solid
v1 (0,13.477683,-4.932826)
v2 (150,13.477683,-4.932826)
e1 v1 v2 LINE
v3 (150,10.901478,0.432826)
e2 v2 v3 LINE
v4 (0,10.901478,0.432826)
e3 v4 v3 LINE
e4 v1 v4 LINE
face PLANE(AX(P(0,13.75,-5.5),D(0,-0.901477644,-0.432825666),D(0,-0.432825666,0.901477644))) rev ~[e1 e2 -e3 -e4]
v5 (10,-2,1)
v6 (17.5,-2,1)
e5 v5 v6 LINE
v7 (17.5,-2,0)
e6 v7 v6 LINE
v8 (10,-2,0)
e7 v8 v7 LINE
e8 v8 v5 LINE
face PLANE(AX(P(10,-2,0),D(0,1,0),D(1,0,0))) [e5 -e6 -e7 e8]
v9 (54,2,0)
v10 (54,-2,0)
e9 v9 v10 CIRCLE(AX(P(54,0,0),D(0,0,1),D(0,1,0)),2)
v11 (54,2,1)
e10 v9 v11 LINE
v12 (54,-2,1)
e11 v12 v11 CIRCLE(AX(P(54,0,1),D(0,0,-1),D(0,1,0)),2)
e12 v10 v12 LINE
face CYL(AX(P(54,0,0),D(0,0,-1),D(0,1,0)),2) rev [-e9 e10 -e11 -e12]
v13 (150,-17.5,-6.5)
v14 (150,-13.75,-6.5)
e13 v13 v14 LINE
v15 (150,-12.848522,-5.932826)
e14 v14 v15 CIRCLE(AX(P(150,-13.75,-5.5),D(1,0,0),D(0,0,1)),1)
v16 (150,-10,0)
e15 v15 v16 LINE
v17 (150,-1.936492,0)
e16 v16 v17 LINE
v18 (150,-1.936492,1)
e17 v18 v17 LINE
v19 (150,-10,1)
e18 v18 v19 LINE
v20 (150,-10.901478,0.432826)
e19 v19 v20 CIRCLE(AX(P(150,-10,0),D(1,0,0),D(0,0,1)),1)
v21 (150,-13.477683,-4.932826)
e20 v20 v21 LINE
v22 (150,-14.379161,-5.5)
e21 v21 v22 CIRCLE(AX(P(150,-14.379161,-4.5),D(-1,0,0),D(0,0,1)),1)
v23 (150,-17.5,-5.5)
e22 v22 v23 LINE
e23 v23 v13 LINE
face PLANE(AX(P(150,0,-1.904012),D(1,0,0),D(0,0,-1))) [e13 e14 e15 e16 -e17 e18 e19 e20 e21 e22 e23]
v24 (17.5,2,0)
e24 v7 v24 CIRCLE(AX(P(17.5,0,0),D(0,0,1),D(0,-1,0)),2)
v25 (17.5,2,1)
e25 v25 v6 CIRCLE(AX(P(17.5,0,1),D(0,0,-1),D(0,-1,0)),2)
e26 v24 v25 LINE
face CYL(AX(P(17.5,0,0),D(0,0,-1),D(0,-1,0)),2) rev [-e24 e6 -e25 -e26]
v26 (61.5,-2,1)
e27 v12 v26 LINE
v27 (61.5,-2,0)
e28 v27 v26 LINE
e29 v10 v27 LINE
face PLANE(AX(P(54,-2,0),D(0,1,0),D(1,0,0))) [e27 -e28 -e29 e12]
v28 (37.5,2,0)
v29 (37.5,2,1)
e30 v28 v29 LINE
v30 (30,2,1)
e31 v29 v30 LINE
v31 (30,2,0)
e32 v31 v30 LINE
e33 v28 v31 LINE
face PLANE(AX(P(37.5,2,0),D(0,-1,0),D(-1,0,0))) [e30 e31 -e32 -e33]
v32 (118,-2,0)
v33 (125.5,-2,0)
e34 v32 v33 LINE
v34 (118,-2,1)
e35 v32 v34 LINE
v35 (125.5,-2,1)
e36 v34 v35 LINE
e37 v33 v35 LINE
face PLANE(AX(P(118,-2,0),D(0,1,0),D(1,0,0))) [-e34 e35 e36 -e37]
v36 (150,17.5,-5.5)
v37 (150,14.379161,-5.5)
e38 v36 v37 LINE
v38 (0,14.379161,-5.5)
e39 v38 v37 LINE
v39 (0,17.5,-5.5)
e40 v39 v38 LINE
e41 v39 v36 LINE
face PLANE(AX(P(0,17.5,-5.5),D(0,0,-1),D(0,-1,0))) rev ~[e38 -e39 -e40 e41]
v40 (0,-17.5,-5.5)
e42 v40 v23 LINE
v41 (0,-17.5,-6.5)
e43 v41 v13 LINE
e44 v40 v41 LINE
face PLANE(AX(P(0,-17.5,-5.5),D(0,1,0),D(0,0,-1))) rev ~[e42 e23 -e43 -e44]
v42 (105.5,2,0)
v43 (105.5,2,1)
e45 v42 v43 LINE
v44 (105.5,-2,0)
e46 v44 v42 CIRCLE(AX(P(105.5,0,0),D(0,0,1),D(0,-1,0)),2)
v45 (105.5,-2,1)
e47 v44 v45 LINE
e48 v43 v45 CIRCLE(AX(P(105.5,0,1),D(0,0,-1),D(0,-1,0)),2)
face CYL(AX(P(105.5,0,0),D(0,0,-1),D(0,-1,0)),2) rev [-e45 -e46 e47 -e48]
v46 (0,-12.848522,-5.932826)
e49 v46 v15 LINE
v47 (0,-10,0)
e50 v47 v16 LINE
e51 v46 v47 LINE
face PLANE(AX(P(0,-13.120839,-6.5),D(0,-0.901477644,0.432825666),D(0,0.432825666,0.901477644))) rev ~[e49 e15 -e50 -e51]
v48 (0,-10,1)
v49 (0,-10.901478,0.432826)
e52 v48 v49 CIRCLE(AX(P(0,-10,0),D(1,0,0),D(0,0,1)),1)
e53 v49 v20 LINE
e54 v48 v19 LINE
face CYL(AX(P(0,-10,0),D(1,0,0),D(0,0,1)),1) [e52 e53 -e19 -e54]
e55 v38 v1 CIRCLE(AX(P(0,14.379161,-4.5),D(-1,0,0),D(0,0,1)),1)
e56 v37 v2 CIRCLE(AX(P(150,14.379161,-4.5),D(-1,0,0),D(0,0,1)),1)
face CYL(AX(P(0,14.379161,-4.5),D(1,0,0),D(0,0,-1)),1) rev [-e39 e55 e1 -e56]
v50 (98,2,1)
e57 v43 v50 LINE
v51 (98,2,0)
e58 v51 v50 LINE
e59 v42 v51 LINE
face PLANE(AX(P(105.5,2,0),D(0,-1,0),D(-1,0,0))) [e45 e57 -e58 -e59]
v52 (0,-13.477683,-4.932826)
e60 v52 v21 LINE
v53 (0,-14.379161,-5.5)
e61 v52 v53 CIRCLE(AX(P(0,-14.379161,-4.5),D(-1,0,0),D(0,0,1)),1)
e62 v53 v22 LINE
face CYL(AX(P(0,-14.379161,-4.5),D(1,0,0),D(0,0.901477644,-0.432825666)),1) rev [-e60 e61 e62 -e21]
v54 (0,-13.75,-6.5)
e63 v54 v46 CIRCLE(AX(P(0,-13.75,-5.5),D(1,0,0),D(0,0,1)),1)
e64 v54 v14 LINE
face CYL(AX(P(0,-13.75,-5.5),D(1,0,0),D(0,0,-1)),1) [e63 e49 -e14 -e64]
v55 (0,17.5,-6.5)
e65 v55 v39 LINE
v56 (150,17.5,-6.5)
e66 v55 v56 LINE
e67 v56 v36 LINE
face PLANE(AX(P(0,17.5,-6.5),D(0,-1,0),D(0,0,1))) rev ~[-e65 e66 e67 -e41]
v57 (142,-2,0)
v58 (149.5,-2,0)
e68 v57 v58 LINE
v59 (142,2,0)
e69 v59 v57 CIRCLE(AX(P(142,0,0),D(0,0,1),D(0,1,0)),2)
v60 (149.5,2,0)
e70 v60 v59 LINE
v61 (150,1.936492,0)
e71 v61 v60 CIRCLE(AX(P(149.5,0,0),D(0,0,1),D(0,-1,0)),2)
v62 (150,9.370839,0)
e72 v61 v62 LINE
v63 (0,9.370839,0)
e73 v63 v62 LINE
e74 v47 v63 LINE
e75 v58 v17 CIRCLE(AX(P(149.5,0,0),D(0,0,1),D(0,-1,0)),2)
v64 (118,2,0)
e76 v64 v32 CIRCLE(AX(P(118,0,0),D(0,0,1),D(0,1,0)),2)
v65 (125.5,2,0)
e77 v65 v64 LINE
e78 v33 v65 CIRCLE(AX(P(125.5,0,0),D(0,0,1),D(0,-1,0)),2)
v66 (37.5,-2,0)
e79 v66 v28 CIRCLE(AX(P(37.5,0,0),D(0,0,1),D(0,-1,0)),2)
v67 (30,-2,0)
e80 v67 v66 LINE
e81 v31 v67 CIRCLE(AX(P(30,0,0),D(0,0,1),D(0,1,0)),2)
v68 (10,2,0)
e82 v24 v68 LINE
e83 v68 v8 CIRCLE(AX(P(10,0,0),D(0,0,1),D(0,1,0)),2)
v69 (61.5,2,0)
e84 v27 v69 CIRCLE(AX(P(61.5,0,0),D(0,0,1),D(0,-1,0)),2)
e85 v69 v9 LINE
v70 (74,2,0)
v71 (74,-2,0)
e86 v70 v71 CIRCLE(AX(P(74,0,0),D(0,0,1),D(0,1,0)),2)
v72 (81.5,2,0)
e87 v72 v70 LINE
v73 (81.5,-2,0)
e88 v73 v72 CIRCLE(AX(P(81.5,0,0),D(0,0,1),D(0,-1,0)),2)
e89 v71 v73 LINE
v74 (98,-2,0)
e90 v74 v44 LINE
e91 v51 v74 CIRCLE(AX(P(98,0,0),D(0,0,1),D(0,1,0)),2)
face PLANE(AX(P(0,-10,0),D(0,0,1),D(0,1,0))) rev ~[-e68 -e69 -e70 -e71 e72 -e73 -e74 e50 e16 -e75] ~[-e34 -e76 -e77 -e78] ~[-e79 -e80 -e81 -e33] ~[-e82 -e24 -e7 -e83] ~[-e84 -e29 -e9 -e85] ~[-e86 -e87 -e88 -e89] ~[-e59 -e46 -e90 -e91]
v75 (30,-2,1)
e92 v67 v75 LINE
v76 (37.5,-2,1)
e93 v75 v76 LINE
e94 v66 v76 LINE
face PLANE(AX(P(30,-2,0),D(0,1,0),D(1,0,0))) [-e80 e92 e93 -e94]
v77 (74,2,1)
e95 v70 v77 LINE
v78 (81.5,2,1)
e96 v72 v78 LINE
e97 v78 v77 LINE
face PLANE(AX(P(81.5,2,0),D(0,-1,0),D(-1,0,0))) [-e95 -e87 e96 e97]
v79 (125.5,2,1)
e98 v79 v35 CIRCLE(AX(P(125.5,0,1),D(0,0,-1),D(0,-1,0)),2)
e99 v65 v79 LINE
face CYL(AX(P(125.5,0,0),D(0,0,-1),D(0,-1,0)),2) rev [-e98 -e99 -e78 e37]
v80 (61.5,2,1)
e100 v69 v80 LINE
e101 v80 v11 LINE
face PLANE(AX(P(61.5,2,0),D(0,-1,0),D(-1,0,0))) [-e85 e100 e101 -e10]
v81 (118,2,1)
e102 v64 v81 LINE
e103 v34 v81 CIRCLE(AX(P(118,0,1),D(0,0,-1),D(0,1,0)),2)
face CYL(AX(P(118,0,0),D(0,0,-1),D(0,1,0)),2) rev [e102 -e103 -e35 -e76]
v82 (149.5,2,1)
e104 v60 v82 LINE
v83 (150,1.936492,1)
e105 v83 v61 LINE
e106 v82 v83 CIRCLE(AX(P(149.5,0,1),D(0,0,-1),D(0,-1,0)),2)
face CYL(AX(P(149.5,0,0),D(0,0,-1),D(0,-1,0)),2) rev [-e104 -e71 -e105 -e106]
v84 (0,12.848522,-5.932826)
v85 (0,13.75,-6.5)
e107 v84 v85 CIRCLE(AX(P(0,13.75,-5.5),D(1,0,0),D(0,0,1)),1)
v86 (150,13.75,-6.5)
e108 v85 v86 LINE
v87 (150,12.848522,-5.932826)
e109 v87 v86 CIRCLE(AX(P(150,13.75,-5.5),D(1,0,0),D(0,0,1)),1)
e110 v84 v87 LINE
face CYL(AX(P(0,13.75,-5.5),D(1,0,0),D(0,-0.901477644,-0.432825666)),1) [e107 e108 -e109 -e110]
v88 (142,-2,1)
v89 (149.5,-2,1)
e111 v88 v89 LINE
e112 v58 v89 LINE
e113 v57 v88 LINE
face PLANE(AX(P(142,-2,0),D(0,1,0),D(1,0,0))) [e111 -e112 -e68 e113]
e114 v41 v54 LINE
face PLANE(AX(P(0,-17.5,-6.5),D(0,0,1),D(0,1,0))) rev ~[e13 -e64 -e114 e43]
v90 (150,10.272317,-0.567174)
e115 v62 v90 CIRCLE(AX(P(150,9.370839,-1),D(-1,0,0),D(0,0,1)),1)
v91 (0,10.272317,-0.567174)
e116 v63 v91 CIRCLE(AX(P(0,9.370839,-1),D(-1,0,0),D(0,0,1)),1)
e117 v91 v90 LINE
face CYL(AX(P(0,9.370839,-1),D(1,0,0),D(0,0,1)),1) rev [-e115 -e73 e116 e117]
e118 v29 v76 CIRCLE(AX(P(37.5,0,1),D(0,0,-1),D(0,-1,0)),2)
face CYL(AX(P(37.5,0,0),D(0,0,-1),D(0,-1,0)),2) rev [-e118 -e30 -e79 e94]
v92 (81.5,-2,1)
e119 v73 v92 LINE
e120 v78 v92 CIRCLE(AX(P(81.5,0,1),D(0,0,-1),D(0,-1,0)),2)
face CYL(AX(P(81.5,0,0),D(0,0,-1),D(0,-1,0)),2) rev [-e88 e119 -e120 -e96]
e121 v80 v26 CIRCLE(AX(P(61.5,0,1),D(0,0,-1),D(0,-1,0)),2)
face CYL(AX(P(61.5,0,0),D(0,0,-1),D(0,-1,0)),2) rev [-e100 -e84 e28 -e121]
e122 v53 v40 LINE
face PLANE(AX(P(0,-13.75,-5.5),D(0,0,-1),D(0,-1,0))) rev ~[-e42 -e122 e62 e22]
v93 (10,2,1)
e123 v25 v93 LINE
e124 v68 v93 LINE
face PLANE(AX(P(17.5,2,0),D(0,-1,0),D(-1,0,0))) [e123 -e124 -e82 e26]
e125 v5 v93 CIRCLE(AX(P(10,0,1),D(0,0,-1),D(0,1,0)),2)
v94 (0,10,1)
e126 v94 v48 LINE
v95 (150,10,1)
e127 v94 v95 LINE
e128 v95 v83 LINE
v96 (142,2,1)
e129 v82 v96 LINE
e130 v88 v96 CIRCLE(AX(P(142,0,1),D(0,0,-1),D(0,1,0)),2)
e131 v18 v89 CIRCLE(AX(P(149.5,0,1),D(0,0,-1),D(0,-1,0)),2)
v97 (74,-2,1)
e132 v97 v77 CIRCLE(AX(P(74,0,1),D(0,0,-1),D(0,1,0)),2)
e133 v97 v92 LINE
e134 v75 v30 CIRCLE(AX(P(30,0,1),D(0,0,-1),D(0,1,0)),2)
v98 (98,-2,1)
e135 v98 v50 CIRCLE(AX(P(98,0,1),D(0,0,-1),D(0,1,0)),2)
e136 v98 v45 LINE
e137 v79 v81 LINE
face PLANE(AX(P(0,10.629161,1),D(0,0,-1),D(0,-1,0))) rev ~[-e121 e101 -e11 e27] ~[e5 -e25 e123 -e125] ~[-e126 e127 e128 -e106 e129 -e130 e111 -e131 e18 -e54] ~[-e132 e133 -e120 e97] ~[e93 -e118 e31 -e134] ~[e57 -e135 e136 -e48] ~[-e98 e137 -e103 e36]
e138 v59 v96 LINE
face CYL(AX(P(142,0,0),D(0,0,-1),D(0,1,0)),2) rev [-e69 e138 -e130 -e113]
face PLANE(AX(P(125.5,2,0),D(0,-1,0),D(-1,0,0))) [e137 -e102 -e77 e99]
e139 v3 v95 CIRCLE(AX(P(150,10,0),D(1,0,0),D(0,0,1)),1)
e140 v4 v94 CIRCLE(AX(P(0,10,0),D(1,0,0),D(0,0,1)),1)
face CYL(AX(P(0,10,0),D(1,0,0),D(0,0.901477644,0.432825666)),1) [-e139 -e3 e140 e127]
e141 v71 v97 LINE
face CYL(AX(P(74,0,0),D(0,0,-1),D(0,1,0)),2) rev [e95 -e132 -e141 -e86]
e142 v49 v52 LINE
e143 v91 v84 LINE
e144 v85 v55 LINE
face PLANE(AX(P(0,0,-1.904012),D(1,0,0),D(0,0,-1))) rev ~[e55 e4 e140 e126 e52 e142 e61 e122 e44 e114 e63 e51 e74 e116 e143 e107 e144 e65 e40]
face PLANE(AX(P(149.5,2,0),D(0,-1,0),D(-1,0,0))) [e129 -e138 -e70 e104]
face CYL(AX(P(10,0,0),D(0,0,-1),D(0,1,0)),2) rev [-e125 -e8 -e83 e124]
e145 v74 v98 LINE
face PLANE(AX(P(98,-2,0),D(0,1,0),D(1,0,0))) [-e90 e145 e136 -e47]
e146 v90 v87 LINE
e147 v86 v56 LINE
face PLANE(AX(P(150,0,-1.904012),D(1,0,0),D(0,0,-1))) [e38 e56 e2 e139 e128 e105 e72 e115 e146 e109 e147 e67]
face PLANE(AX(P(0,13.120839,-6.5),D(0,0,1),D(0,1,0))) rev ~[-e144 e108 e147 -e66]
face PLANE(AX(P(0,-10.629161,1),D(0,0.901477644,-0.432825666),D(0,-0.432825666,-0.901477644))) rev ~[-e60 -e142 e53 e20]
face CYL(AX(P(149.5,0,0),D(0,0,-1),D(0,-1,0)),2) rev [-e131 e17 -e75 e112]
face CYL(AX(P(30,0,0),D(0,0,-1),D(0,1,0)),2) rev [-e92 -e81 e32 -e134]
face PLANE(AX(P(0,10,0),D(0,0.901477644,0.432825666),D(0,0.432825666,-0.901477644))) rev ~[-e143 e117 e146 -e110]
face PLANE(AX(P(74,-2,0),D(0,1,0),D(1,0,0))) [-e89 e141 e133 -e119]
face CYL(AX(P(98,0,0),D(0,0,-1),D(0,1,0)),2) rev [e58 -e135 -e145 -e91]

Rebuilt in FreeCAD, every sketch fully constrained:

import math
import FreeCAD as App
import Part
import Sketcher
from FreeCAD import Vector


def edges_at(feature, points):
    """Names of the edges that pass closest to the given points."""
    edges = feature.Shape.Edges
    near = lambda p: min(range(len(edges)), key=lambda i: edges[i].distToShape(Part.Vertex(*p))[0])
    return sorted({f"Edge{near(p) + 1}" for p in points})

doc = App.newDocument("Part")
body = doc.addObject("PartDesign::Body", "Body")

sketch1 = body.newObject("Sketcher::SketchObject", "Sketch")
sketch1.AttachmentSupport = (doc.getObject("YZ_Plane"), [""])
sketch1.MapMode = "FlatFace"
sketch1.addGeometry(Part.LineSegment(Vector(-10, 0, 0), Vector(10, 0, 0)), False)
sketch1.addGeometry(Part.LineSegment(Vector(10, 0, 0), Vector(13.120839, -6.5, 0)), False)
sketch1.addGeometry(Part.LineSegment(Vector(13.120839, -6.5, 0), Vector(17.5, -6.5, 0)), False)
sketch1.addGeometry(Part.LineSegment(Vector(17.5, -6.5, 0), Vector(17.5, -5.5, 0)), False)
sketch1.addGeometry(Part.LineSegment(Vector(17.5, -5.5, 0), Vector(13.75, -5.5, 0)), False)
sketch1.addGeometry(Part.LineSegment(Vector(13.75, -5.5, 0), Vector(10.629161, 1, 0)), False)
sketch1.addGeometry(Part.LineSegment(Vector(10.629161, 1, 0), Vector(-10.629161, 1, 0)), False)
sketch1.addGeometry(Part.LineSegment(Vector(-10.629161, 1, 0), Vector(-13.75, -5.5, 0)), False)
sketch1.addGeometry(Part.LineSegment(Vector(-13.75, -5.5, 0), Vector(-17.5, -5.5, 0)), False)
sketch1.addGeometry(Part.LineSegment(Vector(-17.5, -5.5, 0), Vector(-17.5, -6.5, 0)), False)
sketch1.addGeometry(Part.LineSegment(Vector(-17.5, -6.5, 0), Vector(-13.120839, -6.5, 0)), False)
sketch1.addGeometry(Part.LineSegment(Vector(-13.120839, -6.5, 0), Vector(-10, 0, 0)), False)
sketch1.addConstraint(Sketcher.Constraint("Coincident", 0, 2, 1, 1))
sketch1.addConstraint(Sketcher.Constraint("Coincident", 1, 2, 2, 1))
sketch1.addConstraint(Sketcher.Constraint("Coincident", 2, 2, 3, 1))
sketch1.addConstraint(Sketcher.Constraint("Coincident", 3, 2, 4, 1))
sketch1.addConstraint(Sketcher.Constraint("Coincident", 4, 2, 5, 1))
sketch1.addConstraint(Sketcher.Constraint("Coincident", 5, 2, 6, 1))
sketch1.addConstraint(Sketcher.Constraint("Coincident", 6, 2, 7, 1))
sketch1.addConstraint(Sketcher.Constraint("Coincident", 7, 2, 8, 1))
sketch1.addConstraint(Sketcher.Constraint("Coincident", 8, 2, 9, 1))
sketch1.addConstraint(Sketcher.Constraint("Coincident", 9, 2, 10, 1))
sketch1.addConstraint(Sketcher.Constraint("Coincident", 10, 2, 11, 1))
sketch1.addConstraint(Sketcher.Constraint("Coincident", 11, 2, 0, 1))
sketch1.addConstraint(Sketcher.Constraint("Horizontal", 0))
sketch1.addConstraint(Sketcher.Constraint("Horizontal", 2))
sketch1.addConstraint(Sketcher.Constraint("Vertical", 3))
sketch1.addConstraint(Sketcher.Constraint("Horizontal", 4))
sketch1.addConstraint(Sketcher.Constraint("Horizontal", 6))
sketch1.addConstraint(Sketcher.Constraint("Horizontal", 8))
sketch1.addConstraint(Sketcher.Constraint("Vertical", 9))
sketch1.addConstraint(Sketcher.Constraint("Horizontal", 10))
sketch1.addConstraint(Sketcher.Constraint("Symmetric", 0, 2, 11, 2, -1, 1))
sketch1.addConstraint(Sketcher.Constraint("Symmetric", 4, 2, 7, 2, -2))
sketch1.addConstraint(Sketcher.Constraint("Symmetric", 2, 2, 9, 2, -2))
sketch1.addConstraint(Sketcher.Constraint("Parallel", 1, 5))
sketch1.addConstraint(Sketcher.Constraint("Parallel", 7, 11))
sketch1.addConstraint(Sketcher.Constraint("Equal", 2, 10))
sketch1.addConstraint(Sketcher.Constraint("Equal", 1, 5))
sketch1.addConstraint(Sketcher.Constraint("DistanceX", 0, 1, 0, 2, 20.0))
sketch1.addConstraint(Sketcher.Constraint("DistanceY", 3, 1, 3, 2, 1.0))
sketch1.addConstraint(Sketcher.Constraint("DistanceX", 4, 2, 4, 1, 3.75))
sketch1.addConstraint(Sketcher.Constraint("DistanceY", 1, 2, -1, 1, 6.5))
sketch1.addConstraint(Sketcher.Constraint("DistanceX", -1, 1, 2, 2, 17.5))
sketch1.addConstraint(Sketcher.Constraint("DistanceX", 2, 1, 2, 2, 4.379161))
pad1 = body.newObject("PartDesign::Pad", "Pad")
pad1.Profile = sketch1
pad1.Length = 150
doc.recompute()

fillet = body.newObject("PartDesign::Fillet", "Fillet")
fillet.Base = (pad1, edges_at(pad1, [
    (75, 10, 0),
    (75, -13.121, -6.5),
    (75, -13.75, -5.5),
    (75, -10.629, 1),
    (75, 10.629, 1),
    (75, 13.75, -5.5),
    (75, 13.121, -6.5),
]))
fillet.Radius = 1

sketch2 = body.newObject("Sketcher::SketchObject", "Sketch001")
sketch2.AttachmentSupport = (doc.getObject("XY_Plane"), [""])
sketch2.MapMode = "FlatFace"
sketch2.addGeometry(Part.LineSegment(Vector(17.5, -2, 0), Vector(10, -2, 0)), False)
sketch2.addGeometry(Part.ArcOfCircle(Part.Circle(Vector(10, 0, 0), Vector(0, 0, 1), 2), math.radians(90), math.radians(270)), False)
sketch2.addGeometry(Part.LineSegment(Vector(10, 2, 0), Vector(17.5, 2, 0)), False)
sketch2.addGeometry(Part.ArcOfCircle(Part.Circle(Vector(17.5, 0, 0), Vector(0, 0, 1), 2), math.radians(-90), math.radians(90)), False)
sketch2.addGeometry(Part.LineSegment(Vector(37.5, -2, 0), Vector(30, -2, 0)), False)
sketch2.addGeometry(Part.ArcOfCircle(Part.Circle(Vector(30, 0, 0), Vector(0, 0, 1), 2), math.radians(90), math.radians(270)), False)
sketch2.addGeometry(Part.LineSegment(Vector(30, 2, 0), Vector(37.5, 2, 0)), False)
sketch2.addGeometry(Part.ArcOfCircle(Part.Circle(Vector(37.5, 0, 0), Vector(0, 0, 1), 2), math.radians(-90), math.radians(90)), False)
sketch2.addGeometry(Part.LineSegment(Vector(61.5, -2, 0), Vector(54, -2, 0)), False)
sketch2.addGeometry(Part.ArcOfCircle(Part.Circle(Vector(54, 0, 0), Vector(0, 0, 1), 2), math.radians(90), math.radians(270)), False)
sketch2.addGeometry(Part.LineSegment(Vector(54, 2, 0), Vector(61.5, 2, 0)), False)
sketch2.addGeometry(Part.ArcOfCircle(Part.Circle(Vector(61.5, 0, 0), Vector(0, 0, 1), 2), math.radians(-90), math.radians(90)), False)
sketch2.addGeometry(Part.LineSegment(Vector(81.5, -2, 0), Vector(74, -2, 0)), False)
sketch2.addGeometry(Part.ArcOfCircle(Part.Circle(Vector(74, 0, 0), Vector(0, 0, 1), 2), math.radians(90), math.radians(270)), False)
sketch2.addGeometry(Part.LineSegment(Vector(74, 2, 0), Vector(81.5, 2, 0)), False)
sketch2.addGeometry(Part.ArcOfCircle(Part.Circle(Vector(81.5, 0, 0), Vector(0, 0, 1), 2), math.radians(-90), math.radians(90)), False)
sketch2.addGeometry(Part.LineSegment(Vector(105.5, -2, 0), Vector(98, -2, 0)), False)
sketch2.addGeometry(Part.ArcOfCircle(Part.Circle(Vector(98, 0, 0), Vector(0, 0, 1), 2), math.radians(90), math.radians(270)), False)
sketch2.addGeometry(Part.LineSegment(Vector(98, 2, 0), Vector(105.5, 2, 0)), False)
sketch2.addGeometry(Part.ArcOfCircle(Part.Circle(Vector(105.5, 0, 0), Vector(0, 0, 1), 2), math.radians(-90), math.radians(90)), False)
sketch2.addGeometry(Part.LineSegment(Vector(125.5, -2, 0), Vector(118, -2, 0)), False)
sketch2.addGeometry(Part.ArcOfCircle(Part.Circle(Vector(118, 0, 0), Vector(0, 0, 1), 2), math.radians(90), math.radians(270)), False)
sketch2.addGeometry(Part.LineSegment(Vector(118, 2, 0), Vector(125.5, 2, 0)), False)
sketch2.addGeometry(Part.ArcOfCircle(Part.Circle(Vector(125.5, 0, 0), Vector(0, 0, 1), 2), math.radians(-90), math.radians(90)), False)
sketch2.addGeometry(Part.LineSegment(Vector(149.5, -2, 0), Vector(142, -2, 0)), False)
sketch2.addGeometry(Part.ArcOfCircle(Part.Circle(Vector(142, 0, 0), Vector(0, 0, 1), 2), math.radians(90), math.radians(270)), False)
sketch2.addGeometry(Part.LineSegment(Vector(142, 2, 0), Vector(149.5, 2, 0)), False)
sketch2.addGeometry(Part.ArcOfCircle(Part.Circle(Vector(149.5, 0, 0), Vector(0, 0, 1), 2), math.radians(-90), math.radians(90)), False)
sketch2.addGeometry(Part.LineSegment(Vector(169.5, -2, 0), Vector(162, -2, 0)), False)
sketch2.addGeometry(Part.ArcOfCircle(Part.Circle(Vector(162, 0, 0), Vector(0, 0, 1), 2), math.radians(90), math.radians(270)), False)
sketch2.addGeometry(Part.LineSegment(Vector(162, 2, 0), Vector(169.5, 2, 0)), False)
sketch2.addGeometry(Part.ArcOfCircle(Part.Circle(Vector(169.5, 0, 0), Vector(0, 0, 1), 2), math.radians(-90), math.radians(90)), False)
sketch2.addGeometry(Part.LineSegment(Vector(193.5, -2, 0), Vector(186, -2, 0)), False)
sketch2.addGeometry(Part.ArcOfCircle(Part.Circle(Vector(186, 0, 0), Vector(0, 0, 1), 2), math.radians(90), math.radians(270)), False)
sketch2.addGeometry(Part.LineSegment(Vector(186, 2, 0), Vector(193.5, 2, 0)), False)
sketch2.addGeometry(Part.ArcOfCircle(Part.Circle(Vector(193.5, 0, 0), Vector(0, 0, 1), 2), math.radians(-90), math.radians(90)), False)
sketch2.addGeometry(Part.LineSegment(Vector(213.5, -2, 0), Vector(206, -2, 0)), False)
sketch2.addGeometry(Part.ArcOfCircle(Part.Circle(Vector(206, 0, 0), Vector(0, 0, 1), 2), math.radians(90), math.radians(270)), False)
sketch2.addGeometry(Part.LineSegment(Vector(206, 2, 0), Vector(213.5, 2, 0)), False)
sketch2.addGeometry(Part.ArcOfCircle(Part.Circle(Vector(213.5, 0, 0), Vector(0, 0, 1), 2), math.radians(-90), math.radians(90)), False)
sketch2.addGeometry(Part.LineSegment(Vector(237.5, -2, 0), Vector(230, -2, 0)), False)
sketch2.addGeometry(Part.ArcOfCircle(Part.Circle(Vector(230, 0, 0), Vector(0, 0, 1), 2), math.radians(90), math.radians(270)), False)
sketch2.addGeometry(Part.LineSegment(Vector(230, 2, 0), Vector(237.5, 2, 0)), False)
sketch2.addGeometry(Part.ArcOfCircle(Part.Circle(Vector(237.5, 0, 0), Vector(0, 0, 1), 2), math.radians(-90), math.radians(90)), False)
sketch2.addGeometry(Part.LineSegment(Vector(257.5, -2, 0), Vector(250, -2, 0)), False)
sketch2.addGeometry(Part.ArcOfCircle(Part.Circle(Vector(250, 0, 0), Vector(0, 0, 1), 2), math.radians(90), math.radians(270)), False)
sketch2.addGeometry(Part.LineSegment(Vector(250, 2, 0), Vector(257.5, 2, 0)), False)
sketch2.addGeometry(Part.ArcOfCircle(Part.Circle(Vector(257.5, 0, 0), Vector(0, 0, 1), 2), math.radians(-90), math.radians(90)), False)
sketch2.addGeometry(Part.LineSegment(Vector(281.5, -2, 0), Vector(274, -2, 0)), False)
sketch2.addGeometry(Part.ArcOfCircle(Part.Circle(Vector(274, 0, 0), Vector(0, 0, 1), 2), math.radians(90), math.radians(270)), False)
sketch2.addGeometry(Part.LineSegment(Vector(274, 2, 0), Vector(281.5, 2, 0)), False)
sketch2.addGeometry(Part.ArcOfCircle(Part.Circle(Vector(281.5, 0, 0), Vector(0, 0, 1), 2), math.radians(-90), math.radians(90)), False)
sketch2.addGeometry(Part.LineSegment(Vector(301.5, -2, 0), Vector(294, -2, 0)), False)
sketch2.addGeometry(Part.ArcOfCircle(Part.Circle(Vector(294, 0, 0), Vector(0, 0, 1), 2), math.radians(90), math.radians(270)), False)
sketch2.addGeometry(Part.LineSegment(Vector(294, 2, 0), Vector(301.5, 2, 0)), False)
sketch2.addGeometry(Part.ArcOfCircle(Part.Circle(Vector(301.5, 0, 0), Vector(0, 0, 1), 2), math.radians(-90), math.radians(90)), False)
sketch2.addGeometry(Part.LineSegment(Vector(325.5, -2, 0), Vector(318, -2, 0)), False)
sketch2.addGeometry(Part.ArcOfCircle(Part.Circle(Vector(318, 0, 0), Vector(0, 0, 1), 2), math.radians(90), math.radians(270)), False)
sketch2.addGeometry(Part.LineSegment(Vector(318, 2, 0), Vector(325.5, 2, 0)), False)
sketch2.addGeometry(Part.ArcOfCircle(Part.Circle(Vector(325.5, 0, 0), Vector(0, 0, 1), 2), math.radians(-90), math.radians(90)), False)
sketch2.addGeometry(Part.LineSegment(Vector(345.5, -2, 0), Vector(338, -2, 0)), False)
sketch2.addGeometry(Part.ArcOfCircle(Part.Circle(Vector(338, 0, 0), Vector(0, 0, 1), 2), math.radians(90), math.radians(270)), False)
sketch2.addGeometry(Part.LineSegment(Vector(338, 2, 0), Vector(345.5, 2, 0)), False)
sketch2.addGeometry(Part.ArcOfCircle(Part.Circle(Vector(345.5, 0, 0), Vector(0, 0, 1), 2), math.radians(-90), math.radians(90)), False)
sketch2.addGeometry(Part.LineSegment(Vector(369.5, -2, 0), Vector(362, -2, 0)), False)
sketch2.addGeometry(Part.ArcOfCircle(Part.Circle(Vector(362, 0, 0), Vector(0, 0, 1), 2), math.radians(90), math.radians(270)), False)
sketch2.addGeometry(Part.LineSegment(Vector(362, 2, 0), Vector(369.5, 2, 0)), False)
sketch2.addGeometry(Part.ArcOfCircle(Part.Circle(Vector(369.5, 0, 0), Vector(0, 0, 1), 2), math.radians(-90), math.radians(90)), False)
sketch2.addGeometry(Part.LineSegment(Vector(389.5, -2, 0), Vector(382, -2, 0)), False)
sketch2.addGeometry(Part.ArcOfCircle(Part.Circle(Vector(382, 0, 0), Vector(0, 0, 1), 2), math.radians(90), math.radians(270)), False)
sketch2.addGeometry(Part.LineSegment(Vector(382, 2, 0), Vector(389.5, 2, 0)), False)
sketch2.addGeometry(Part.ArcOfCircle(Part.Circle(Vector(389.5, 0, 0), Vector(0, 0, 1), 2), math.radians(-90), math.radians(90)), False)
sketch2.addConstraint(Sketcher.Constraint("Tangent", 0, 2, 1, 2))
sketch2.addConstraint(Sketcher.Constraint("Tangent", 1, 1, 2, 1))
sketch2.addConstraint(Sketcher.Constraint("Tangent", 2, 2, 3, 2))
sketch2.addConstraint(Sketcher.Constraint("Tangent", 3, 1, 0, 1))
sketch2.addConstraint(Sketcher.Constraint("Tangent", 4, 2, 5, 2))
sketch2.addConstraint(Sketcher.Constraint("Tangent", 5, 1, 6, 1))
sketch2.addConstraint(Sketcher.Constraint("Tangent", 6, 2, 7, 2))
sketch2.addConstraint(Sketcher.Constraint("Tangent", 7, 1, 4, 1))
sketch2.addConstraint(Sketcher.Constraint("Tangent", 8, 2, 9, 2))
sketch2.addConstraint(Sketcher.Constraint("Tangent", 9, 1, 10, 1))
sketch2.addConstraint(Sketcher.Constraint("Tangent", 10, 2, 11, 2))
sketch2.addConstraint(Sketcher.Constraint("Tangent", 11, 1, 8, 1))
sketch2.addConstraint(Sketcher.Constraint("Tangent", 12, 2, 13, 2))
sketch2.addConstraint(Sketcher.Constraint("Tangent", 13, 1, 14, 1))
sketch2.addConstraint(Sketcher.Constraint("Tangent", 14, 2, 15, 2))
sketch2.addConstraint(Sketcher.Constraint("Tangent", 15, 1, 12, 1))
sketch2.addConstraint(Sketcher.Constraint("Tangent", 16, 2, 17, 2))
sketch2.addConstraint(Sketcher.Constraint("Tangent", 17, 1, 18, 1))
sketch2.addConstraint(Sketcher.Constraint("Tangent", 18, 2, 19, 2))
sketch2.addConstraint(Sketcher.Constraint("Tangent", 19, 1, 16, 1))
sketch2.addConstraint(Sketcher.Constraint("Tangent", 20, 2, 21, 2))
sketch2.addConstraint(Sketcher.Constraint("Tangent", 21, 1, 22, 1))
sketch2.addConstraint(Sketcher.Constraint("Tangent", 22, 2, 23, 2))
sketch2.addConstraint(Sketcher.Constraint("Tangent", 23, 1, 20, 1))
sketch2.addConstraint(Sketcher.Constraint("Tangent", 24, 2, 25, 2))
sketch2.addConstraint(Sketcher.Constraint("Tangent", 25, 1, 26, 1))
sketch2.addConstraint(Sketcher.Constraint("Tangent", 26, 2, 27, 2))
sketch2.addConstraint(Sketcher.Constraint("Tangent", 27, 1, 24, 1))
sketch2.addConstraint(Sketcher.Constraint("Tangent", 28, 2, 29, 2))
sketch2.addConstraint(Sketcher.Constraint("Tangent", 29, 1, 30, 1))
sketch2.addConstraint(Sketcher.Constraint("Tangent", 30, 2, 31, 2))
sketch2.addConstraint(Sketcher.Constraint("Tangent", 31, 1, 28, 1))
sketch2.addConstraint(Sketcher.Constraint("Tangent", 32, 2, 33, 2))
sketch2.addConstraint(Sketcher.Constraint("Tangent", 33, 1, 34, 1))
sketch2.addConstraint(Sketcher.Constraint("Tangent", 34, 2, 35, 2))
sketch2.addConstraint(Sketcher.Constraint("Tangent", 35, 1, 32, 1))
sketch2.addConstraint(Sketcher.Constraint("Tangent", 36, 2, 37, 2))
sketch2.addConstraint(Sketcher.Constraint("Tangent", 37, 1, 38, 1))
sketch2.addConstraint(Sketcher.Constraint("Tangent", 38, 2, 39, 2))
sketch2.addConstraint(Sketcher.Constraint("Tangent", 39, 1, 36, 1))
sketch2.addConstraint(Sketcher.Constraint("Tangent", 40, 2, 41, 2))
sketch2.addConstraint(Sketcher.Constraint("Tangent", 41, 1, 42, 1))
sketch2.addConstraint(Sketcher.Constraint("Tangent", 42, 2, 43, 2))
sketch2.addConstraint(Sketcher.Constraint("Tangent", 43, 1, 40, 1))
sketch2.addConstraint(Sketcher.Constraint("Tangent", 44, 2, 45, 2))
sketch2.addConstraint(Sketcher.Constraint("Tangent", 45, 1, 46, 1))
sketch2.addConstraint(Sketcher.Constraint("Tangent", 46, 2, 47, 2))
sketch2.addConstraint(Sketcher.Constraint("Tangent", 47, 1, 44, 1))
sketch2.addConstraint(Sketcher.Constraint("Tangent", 48, 2, 49, 2))
sketch2.addConstraint(Sketcher.Constraint("Tangent", 49, 1, 50, 1))
sketch2.addConstraint(Sketcher.Constraint("Tangent", 50, 2, 51, 2))
sketch2.addConstraint(Sketcher.Constraint("Tangent", 51, 1, 48, 1))
sketch2.addConstraint(Sketcher.Constraint("Tangent", 52, 2, 53, 2))
sketch2.addConstraint(Sketcher.Constraint("Tangent", 53, 1, 54, 1))
sketch2.addConstraint(Sketcher.Constraint("Tangent", 54, 2, 55, 2))
sketch2.addConstraint(Sketcher.Constraint("Tangent", 55, 1, 52, 1))
sketch2.addConstraint(Sketcher.Constraint("Tangent", 56, 2, 57, 2))
sketch2.addConstraint(Sketcher.Constraint("Tangent", 57, 1, 58, 1))
sketch2.addConstraint(Sketcher.Constraint("Tangent", 58, 2, 59, 2))
sketch2.addConstraint(Sketcher.Constraint("Tangent", 59, 1, 56, 1))
sketch2.addConstraint(Sketcher.Constraint("Tangent", 60, 2, 61, 2))
sketch2.addConstraint(Sketcher.Constraint("Tangent", 61, 1, 62, 1))
sketch2.addConstraint(Sketcher.Constraint("Tangent", 62, 2, 63, 2))
sketch2.addConstraint(Sketcher.Constraint("Tangent", 63, 1, 60, 1))
sketch2.addConstraint(Sketcher.Constraint("Tangent", 64, 2, 65, 2))
sketch2.addConstraint(Sketcher.Constraint("Tangent", 65, 1, 66, 1))
sketch2.addConstraint(Sketcher.Constraint("Tangent", 66, 2, 67, 2))
sketch2.addConstraint(Sketcher.Constraint("Tangent", 67, 1, 64, 1))
sketch2.addConstraint(Sketcher.Constraint("Tangent", 68, 2, 69, 2))
sketch2.addConstraint(Sketcher.Constraint("Tangent", 69, 1, 70, 1))
sketch2.addConstraint(Sketcher.Constraint("Tangent", 70, 2, 71, 2))
sketch2.addConstraint(Sketcher.Constraint("Tangent", 71, 1, 68, 1))
sketch2.addConstraint(Sketcher.Constraint("Horizontal", 0))
sketch2.addConstraint(Sketcher.Constraint("Horizontal", 2))
sketch2.addConstraint(Sketcher.Constraint("Horizontal", 4))
sketch2.addConstraint(Sketcher.Constraint("Horizontal", 6))
sketch2.addConstraint(Sketcher.Constraint("Horizontal", 8))
sketch2.addConstraint(Sketcher.Constraint("Horizontal", 10))
sketch2.addConstraint(Sketcher.Constraint("Horizontal", 12))
sketch2.addConstraint(Sketcher.Constraint("Horizontal", 14))
sketch2.addConstraint(Sketcher.Constraint("Horizontal", 16))
sketch2.addConstraint(Sketcher.Constraint("Horizontal", 18))
sketch2.addConstraint(Sketcher.Constraint("Horizontal", 20))
sketch2.addConstraint(Sketcher.Constraint("Horizontal", 22))
sketch2.addConstraint(Sketcher.Constraint("Horizontal", 24))
sketch2.addConstraint(Sketcher.Constraint("Horizontal", 26))
sketch2.addConstraint(Sketcher.Constraint("Horizontal", 28))
sketch2.addConstraint(Sketcher.Constraint("Horizontal", 30))
sketch2.addConstraint(Sketcher.Constraint("Horizontal", 32))
sketch2.addConstraint(Sketcher.Constraint("Horizontal", 34))
sketch2.addConstraint(Sketcher.Constraint("Horizontal", 36))
sketch2.addConstraint(Sketcher.Constraint("Horizontal", 38))
sketch2.addConstraint(Sketcher.Constraint("Horizontal", 40))
sketch2.addConstraint(Sketcher.Constraint("Horizontal", 42))
sketch2.addConstraint(Sketcher.Constraint("Horizontal", 44))
sketch2.addConstraint(Sketcher.Constraint("Horizontal", 46))
sketch2.addConstraint(Sketcher.Constraint("Horizontal", 48))
sketch2.addConstraint(Sketcher.Constraint("Horizontal", 50))
sketch2.addConstraint(Sketcher.Constraint("Horizontal", 52))
sketch2.addConstraint(Sketcher.Constraint("Horizontal", 54))
sketch2.addConstraint(Sketcher.Constraint("Horizontal", 56))
sketch2.addConstraint(Sketcher.Constraint("Horizontal", 58))
sketch2.addConstraint(Sketcher.Constraint("Horizontal", 60))
sketch2.addConstraint(Sketcher.Constraint("Horizontal", 62))
sketch2.addConstraint(Sketcher.Constraint("Horizontal", 64))
sketch2.addConstraint(Sketcher.Constraint("Horizontal", 66))
sketch2.addConstraint(Sketcher.Constraint("Horizontal", 68))
sketch2.addConstraint(Sketcher.Constraint("Horizontal", 70))
sketch2.addConstraint(Sketcher.Constraint("Equal", 3, 5))
sketch2.addConstraint(Sketcher.Constraint("Equal", 7, 9))
sketch2.addConstraint(Sketcher.Constraint("Equal", 11, 13))
sketch2.addConstraint(Sketcher.Constraint("Equal", 15, 17))
sketch2.addConstraint(Sketcher.Constraint("Equal", 19, 21))
sketch2.addConstraint(Sketcher.Constraint("Equal", 23, 25))
sketch2.addConstraint(Sketcher.Constraint("Equal", 27, 29))
sketch2.addConstraint(Sketcher.Constraint("Equal", 31, 33))
sketch2.addConstraint(Sketcher.Constraint("Equal", 35, 37))
sketch2.addConstraint(Sketcher.Constraint("Equal", 39, 41))
sketch2.addConstraint(Sketcher.Constraint("Equal", 43, 45))
sketch2.addConstraint(Sketcher.Constraint("Equal", 47, 49))
sketch2.addConstraint(Sketcher.Constraint("Equal", 51, 53))
sketch2.addConstraint(Sketcher.Constraint("Equal", 55, 57))
sketch2.addConstraint(Sketcher.Constraint("Equal", 59, 61))
sketch2.addConstraint(Sketcher.Constraint("Equal", 63, 65))
sketch2.addConstraint(Sketcher.Constraint("Equal", 67, 69))
sketch2.addConstraint(Sketcher.Constraint("PointOnObject", 1, 3, -1))
sketch2.addConstraint(Sketcher.Constraint("PointOnObject", 5, 3, -1))
sketch2.addConstraint(Sketcher.Constraint("PointOnObject", 9, 3, -1))
sketch2.addConstraint(Sketcher.Constraint("PointOnObject", 13, 3, -1))
sketch2.addConstraint(Sketcher.Constraint("PointOnObject", 17, 3, -1))
sketch2.addConstraint(Sketcher.Constraint("PointOnObject", 21, 3, -1))
sketch2.addConstraint(Sketcher.Constraint("PointOnObject", 25, 3, -1))
sketch2.addConstraint(Sketcher.Constraint("PointOnObject", 29, 3, -1))
sketch2.addConstraint(Sketcher.Constraint("PointOnObject", 33, 3, -1))
sketch2.addConstraint(Sketcher.Constraint("PointOnObject", 37, 3, -1))
sketch2.addConstraint(Sketcher.Constraint("PointOnObject", 41, 3, -1))
sketch2.addConstraint(Sketcher.Constraint("PointOnObject", 45, 3, -1))
sketch2.addConstraint(Sketcher.Constraint("PointOnObject", 49, 3, -1))
sketch2.addConstraint(Sketcher.Constraint("PointOnObject", 53, 3, -1))
sketch2.addConstraint(Sketcher.Constraint("PointOnObject", 57, 3, -1))
sketch2.addConstraint(Sketcher.Constraint("PointOnObject", 61, 3, -1))
sketch2.addConstraint(Sketcher.Constraint("PointOnObject", 65, 3, -1))
sketch2.addConstraint(Sketcher.Constraint("PointOnObject", 69, 3, -1))
sketch2.addConstraint(Sketcher.Constraint("Equal", 2, 4))
sketch2.addConstraint(Sketcher.Constraint("Equal", 6, 8))
sketch2.addConstraint(Sketcher.Constraint("Equal", 10, 12))
sketch2.addConstraint(Sketcher.Constraint("Equal", 14, 16))
sketch2.addConstraint(Sketcher.Constraint("Equal", 18, 20))
sketch2.addConstraint(Sketcher.Constraint("Equal", 22, 24))
sketch2.addConstraint(Sketcher.Constraint("Equal", 26, 28))
sketch2.addConstraint(Sketcher.Constraint("Equal", 30, 32))
sketch2.addConstraint(Sketcher.Constraint("Equal", 34, 36))
sketch2.addConstraint(Sketcher.Constraint("Equal", 38, 40))
sketch2.addConstraint(Sketcher.Constraint("Equal", 42, 44))
sketch2.addConstraint(Sketcher.Constraint("Equal", 46, 48))
sketch2.addConstraint(Sketcher.Constraint("Equal", 50, 52))
sketch2.addConstraint(Sketcher.Constraint("Equal", 54, 56))
sketch2.addConstraint(Sketcher.Constraint("Equal", 58, 60))
sketch2.addConstraint(Sketcher.Constraint("Equal", 62, 64))
sketch2.addConstraint(Sketcher.Constraint("Equal", 66, 68))
sketch2.addConstraint(Sketcher.Constraint("Radius", 1, 2.0))
sketch2.addConstraint(Sketcher.Constraint("DistanceX", 0, 2, 0, 1, 7.5))
sketch2.addConstraint(Sketcher.Constraint("DistanceX", -1, 1, 1, 3, 10.0))
sketch2.addConstraint(Sketcher.Constraint("DistanceX", -1, 1, 5, 3, 30.0))
sketch2.addConstraint(Sketcher.Constraint("DistanceX", -1, 1, 9, 3, 54.0))
sketch2.addConstraint(Sketcher.Constraint("DistanceX", -1, 1, 13, 3, 74.0))
sketch2.addConstraint(Sketcher.Constraint("DistanceX", -1, 1, 17, 3, 98.0))
sketch2.addConstraint(Sketcher.Constraint("DistanceX", -1, 1, 21, 3, 118.0))
sketch2.addConstraint(Sketcher.Constraint("DistanceX", -1, 1, 25, 3, 142.0))
sketch2.addConstraint(Sketcher.Constraint("DistanceX", -1, 1, 29, 3, 162.0))
sketch2.addConstraint(Sketcher.Constraint("DistanceX", -1, 1, 33, 3, 186.0))
sketch2.addConstraint(Sketcher.Constraint("DistanceX", -1, 1, 37, 3, 206.0))
sketch2.addConstraint(Sketcher.Constraint("DistanceX", -1, 1, 41, 3, 230.0))
sketch2.addConstraint(Sketcher.Constraint("DistanceX", -1, 1, 45, 3, 250.0))
sketch2.addConstraint(Sketcher.Constraint("DistanceX", -1, 1, 49, 3, 274.0))
sketch2.addConstraint(Sketcher.Constraint("DistanceX", -1, 1, 53, 3, 294.0))
sketch2.addConstraint(Sketcher.Constraint("DistanceX", -1, 1, 57, 3, 318.0))
sketch2.addConstraint(Sketcher.Constraint("DistanceX", -1, 1, 61, 3, 338.0))
sketch2.addConstraint(Sketcher.Constraint("DistanceX", -1, 1, 65, 3, 362.0))
sketch2.addConstraint(Sketcher.Constraint("DistanceX", -1, 1, 69, 3, 382.0))
pocket1 = body.newObject("PartDesign::Pocket", "Pocket")
pocket1.Profile = sketch2
pocket1.Length = 10
pocket1.Reversed = True

doc.recompute()
